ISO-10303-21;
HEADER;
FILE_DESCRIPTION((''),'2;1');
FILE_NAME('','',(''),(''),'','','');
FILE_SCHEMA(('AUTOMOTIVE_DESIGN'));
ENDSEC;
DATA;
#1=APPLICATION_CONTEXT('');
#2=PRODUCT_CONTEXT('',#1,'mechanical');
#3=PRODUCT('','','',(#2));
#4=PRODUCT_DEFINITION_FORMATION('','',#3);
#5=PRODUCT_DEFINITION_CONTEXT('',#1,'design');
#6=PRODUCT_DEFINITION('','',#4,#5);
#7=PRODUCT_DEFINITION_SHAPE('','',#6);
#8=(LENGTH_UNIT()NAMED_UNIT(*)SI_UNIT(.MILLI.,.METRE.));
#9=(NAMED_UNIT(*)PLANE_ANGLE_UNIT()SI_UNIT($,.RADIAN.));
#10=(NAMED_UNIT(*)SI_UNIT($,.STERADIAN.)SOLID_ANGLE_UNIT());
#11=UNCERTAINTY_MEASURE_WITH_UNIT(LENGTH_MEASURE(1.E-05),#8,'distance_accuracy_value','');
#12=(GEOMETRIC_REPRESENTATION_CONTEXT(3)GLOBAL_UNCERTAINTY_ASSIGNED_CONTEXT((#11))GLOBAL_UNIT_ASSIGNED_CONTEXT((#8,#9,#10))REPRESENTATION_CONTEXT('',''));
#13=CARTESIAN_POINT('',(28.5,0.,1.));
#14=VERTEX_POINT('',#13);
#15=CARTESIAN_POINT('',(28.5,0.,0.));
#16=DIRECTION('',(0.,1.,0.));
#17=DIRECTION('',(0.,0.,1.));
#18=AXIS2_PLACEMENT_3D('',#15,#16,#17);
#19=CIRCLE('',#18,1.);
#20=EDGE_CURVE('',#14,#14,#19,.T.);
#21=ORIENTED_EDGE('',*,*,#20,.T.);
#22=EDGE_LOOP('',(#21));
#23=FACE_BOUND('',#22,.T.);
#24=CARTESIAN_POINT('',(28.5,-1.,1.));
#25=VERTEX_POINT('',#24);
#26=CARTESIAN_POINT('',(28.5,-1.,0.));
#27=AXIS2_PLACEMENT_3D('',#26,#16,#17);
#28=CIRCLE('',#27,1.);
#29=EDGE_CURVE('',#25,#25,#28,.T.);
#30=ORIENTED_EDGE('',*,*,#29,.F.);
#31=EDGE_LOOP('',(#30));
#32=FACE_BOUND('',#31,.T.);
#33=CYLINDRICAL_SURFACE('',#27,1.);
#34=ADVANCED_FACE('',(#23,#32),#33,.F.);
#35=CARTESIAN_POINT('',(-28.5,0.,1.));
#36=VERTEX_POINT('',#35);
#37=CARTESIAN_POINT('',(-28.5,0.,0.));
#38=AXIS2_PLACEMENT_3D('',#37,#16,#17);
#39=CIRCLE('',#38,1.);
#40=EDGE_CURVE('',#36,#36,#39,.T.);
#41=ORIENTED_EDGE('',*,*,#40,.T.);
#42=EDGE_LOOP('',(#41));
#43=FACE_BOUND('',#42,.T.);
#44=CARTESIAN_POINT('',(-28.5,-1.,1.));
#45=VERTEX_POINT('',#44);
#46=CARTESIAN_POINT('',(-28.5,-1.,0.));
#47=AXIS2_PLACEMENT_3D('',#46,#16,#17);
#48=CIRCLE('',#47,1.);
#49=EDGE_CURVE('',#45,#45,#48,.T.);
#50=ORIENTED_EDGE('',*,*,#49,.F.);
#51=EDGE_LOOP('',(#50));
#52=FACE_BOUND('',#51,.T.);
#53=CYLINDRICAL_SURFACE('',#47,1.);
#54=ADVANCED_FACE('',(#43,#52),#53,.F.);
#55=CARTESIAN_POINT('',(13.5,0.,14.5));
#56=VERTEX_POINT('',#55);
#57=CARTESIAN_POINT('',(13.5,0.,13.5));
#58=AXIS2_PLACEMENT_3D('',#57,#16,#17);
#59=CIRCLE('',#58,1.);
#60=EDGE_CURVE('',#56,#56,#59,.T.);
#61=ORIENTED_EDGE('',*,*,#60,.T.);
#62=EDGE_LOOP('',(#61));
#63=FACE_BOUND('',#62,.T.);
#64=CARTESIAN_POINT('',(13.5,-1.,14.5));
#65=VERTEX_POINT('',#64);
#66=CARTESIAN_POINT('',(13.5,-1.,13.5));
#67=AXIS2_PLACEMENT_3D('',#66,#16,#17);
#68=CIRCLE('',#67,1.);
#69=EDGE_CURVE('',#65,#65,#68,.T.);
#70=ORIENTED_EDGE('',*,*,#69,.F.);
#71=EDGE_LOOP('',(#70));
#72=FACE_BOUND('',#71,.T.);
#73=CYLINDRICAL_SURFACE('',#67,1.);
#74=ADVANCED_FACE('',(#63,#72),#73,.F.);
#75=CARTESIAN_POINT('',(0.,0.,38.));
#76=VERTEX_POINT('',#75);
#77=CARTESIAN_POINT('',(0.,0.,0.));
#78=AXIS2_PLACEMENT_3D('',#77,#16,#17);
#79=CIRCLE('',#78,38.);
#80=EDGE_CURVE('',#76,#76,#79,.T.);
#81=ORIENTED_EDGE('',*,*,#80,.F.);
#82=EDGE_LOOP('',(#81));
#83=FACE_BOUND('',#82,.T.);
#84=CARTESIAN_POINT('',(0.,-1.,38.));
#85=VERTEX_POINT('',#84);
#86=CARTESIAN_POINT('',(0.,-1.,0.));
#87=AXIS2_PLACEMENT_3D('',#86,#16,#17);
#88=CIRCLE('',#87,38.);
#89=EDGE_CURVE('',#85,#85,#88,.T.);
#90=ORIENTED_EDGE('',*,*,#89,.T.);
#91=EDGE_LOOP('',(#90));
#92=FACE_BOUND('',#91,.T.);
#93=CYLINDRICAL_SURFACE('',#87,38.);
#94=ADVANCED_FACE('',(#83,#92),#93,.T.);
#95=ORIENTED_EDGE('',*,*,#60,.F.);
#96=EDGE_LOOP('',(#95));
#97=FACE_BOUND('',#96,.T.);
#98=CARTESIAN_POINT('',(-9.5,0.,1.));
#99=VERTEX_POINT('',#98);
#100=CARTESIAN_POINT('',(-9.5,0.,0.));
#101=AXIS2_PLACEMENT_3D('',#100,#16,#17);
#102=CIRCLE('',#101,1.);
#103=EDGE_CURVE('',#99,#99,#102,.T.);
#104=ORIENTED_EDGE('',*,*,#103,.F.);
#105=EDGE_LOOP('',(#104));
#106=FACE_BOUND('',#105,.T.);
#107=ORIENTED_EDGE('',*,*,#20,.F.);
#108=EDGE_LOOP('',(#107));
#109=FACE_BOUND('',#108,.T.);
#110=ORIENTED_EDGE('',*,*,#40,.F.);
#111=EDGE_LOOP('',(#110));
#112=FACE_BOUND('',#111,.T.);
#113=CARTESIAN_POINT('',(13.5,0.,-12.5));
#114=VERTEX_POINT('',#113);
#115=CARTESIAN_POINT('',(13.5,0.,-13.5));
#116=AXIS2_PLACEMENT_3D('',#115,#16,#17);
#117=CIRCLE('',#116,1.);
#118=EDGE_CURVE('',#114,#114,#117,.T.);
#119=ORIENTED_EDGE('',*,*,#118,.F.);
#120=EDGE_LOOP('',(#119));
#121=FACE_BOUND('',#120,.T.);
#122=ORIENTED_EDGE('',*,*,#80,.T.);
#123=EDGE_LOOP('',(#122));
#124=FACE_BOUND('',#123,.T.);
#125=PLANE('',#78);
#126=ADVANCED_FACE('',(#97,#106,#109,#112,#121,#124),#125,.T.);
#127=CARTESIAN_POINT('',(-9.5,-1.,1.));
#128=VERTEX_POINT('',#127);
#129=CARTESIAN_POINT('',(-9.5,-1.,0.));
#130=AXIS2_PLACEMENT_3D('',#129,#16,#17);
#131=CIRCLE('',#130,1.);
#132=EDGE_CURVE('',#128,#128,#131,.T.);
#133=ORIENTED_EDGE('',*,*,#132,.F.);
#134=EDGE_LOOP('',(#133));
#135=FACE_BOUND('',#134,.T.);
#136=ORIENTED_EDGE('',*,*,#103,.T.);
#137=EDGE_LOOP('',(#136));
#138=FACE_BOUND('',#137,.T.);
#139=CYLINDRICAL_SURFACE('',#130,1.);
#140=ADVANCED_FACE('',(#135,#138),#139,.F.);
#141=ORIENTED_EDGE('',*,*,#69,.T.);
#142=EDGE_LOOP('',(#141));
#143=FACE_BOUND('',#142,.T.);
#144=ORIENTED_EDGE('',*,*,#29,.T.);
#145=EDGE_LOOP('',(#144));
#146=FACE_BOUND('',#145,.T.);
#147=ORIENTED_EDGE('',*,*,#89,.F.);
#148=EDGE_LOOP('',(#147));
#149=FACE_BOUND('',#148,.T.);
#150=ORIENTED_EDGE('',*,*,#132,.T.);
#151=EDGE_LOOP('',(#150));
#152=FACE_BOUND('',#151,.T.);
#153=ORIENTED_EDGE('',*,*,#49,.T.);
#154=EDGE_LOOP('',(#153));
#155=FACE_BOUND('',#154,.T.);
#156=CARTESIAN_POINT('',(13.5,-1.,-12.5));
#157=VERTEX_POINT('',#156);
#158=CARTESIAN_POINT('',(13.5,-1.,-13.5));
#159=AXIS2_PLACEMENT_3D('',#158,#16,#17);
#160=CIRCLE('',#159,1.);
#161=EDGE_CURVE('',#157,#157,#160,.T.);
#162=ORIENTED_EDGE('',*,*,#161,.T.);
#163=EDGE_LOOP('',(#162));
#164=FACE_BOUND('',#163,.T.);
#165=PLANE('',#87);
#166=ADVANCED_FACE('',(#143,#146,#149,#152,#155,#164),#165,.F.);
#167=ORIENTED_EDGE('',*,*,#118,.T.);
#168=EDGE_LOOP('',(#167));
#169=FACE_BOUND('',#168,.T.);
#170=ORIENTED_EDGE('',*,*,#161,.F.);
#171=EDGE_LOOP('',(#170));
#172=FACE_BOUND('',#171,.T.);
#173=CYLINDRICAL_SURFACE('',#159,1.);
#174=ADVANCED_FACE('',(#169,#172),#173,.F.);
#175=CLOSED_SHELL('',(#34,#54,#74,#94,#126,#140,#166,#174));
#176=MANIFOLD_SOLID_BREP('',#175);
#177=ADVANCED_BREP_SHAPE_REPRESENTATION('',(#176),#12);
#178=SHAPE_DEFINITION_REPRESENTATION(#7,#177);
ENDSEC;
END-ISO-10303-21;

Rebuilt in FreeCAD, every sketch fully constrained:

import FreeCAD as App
import Part
import Sketcher
from FreeCAD import Vector

doc = App.newDocument("Part")
body = doc.addObject("PartDesign::Body", "Body")

# Sketch on XZ plane
sketch1 = body.newObject("Sketcher::SketchObject", "Sketch")
sketch1.AttachmentSupport = (doc.getObject("XZ_Plane"), [""])
sketch1.MapMode = "FlatFace"
sketch1.addGeometry([
    Part.Circle(Vector(0, 0, 0), Vector(0, 0, 1), 38),  # 0
    Part.Circle(Vector(-28.5, 0, 0), Vector(0, 0, 1), 1),  # 1
    Part.Circle(Vector(-9.5, 0, 0), Vector(0, 0, 1), 1),  # 2
    Part.Circle(Vector(13.5, -13.5, 0), Vector(0, 0, 1), 1),  # 3
    Part.Circle(Vector(28.5, 0, 0), Vector(0, 0, 1), 1),  # 4
    Part.Circle(Vector(13.5, 13.5, 0), Vector(0, 0, 1), 1),  # 5
], False)
sketch1.addConstraint([
    Sketcher.Constraint("Coincident", 0, 3, -1, 1),
    Sketcher.Constraint("Equal", 1, 2),
    Sketcher.Constraint("Equal", 2, 3),
    Sketcher.Constraint("Equal", 3, 4),
    Sketcher.Constraint("Equal", 4, 5),
    Sketcher.Constraint("Symmetric", 1, 3, 4, 3, -1, 1),
    Sketcher.Constraint("Symmetric", 3, 3, 5, 3, -1),
    Sketcher.Constraint("PointOnObject", 1, 3, -1),
    Sketcher.Constraint("PointOnObject", 2, 3, -1),
    Sketcher.Constraint("Diameter", 0, 76.0),
    Sketcher.Constraint("Diameter", 1, 2.0),
    Sketcher.Constraint("DistanceX", 1, 3, 2, 3, 19.0),
    Sketcher.Constraint("DistanceX", 2, 3, 3, 3, 23.0),
    Sketcher.Constraint("DistanceX", 3, 3, 4, 3, 15.0),
    Sketcher.Constraint("DistanceY", 3, 3, 5, 3, 27.0),
])
pad1 = body.newObject("PartDesign::Pad", "Pad")
pad1.Profile = sketch1
pad1.Length = 1

doc.recompute()
